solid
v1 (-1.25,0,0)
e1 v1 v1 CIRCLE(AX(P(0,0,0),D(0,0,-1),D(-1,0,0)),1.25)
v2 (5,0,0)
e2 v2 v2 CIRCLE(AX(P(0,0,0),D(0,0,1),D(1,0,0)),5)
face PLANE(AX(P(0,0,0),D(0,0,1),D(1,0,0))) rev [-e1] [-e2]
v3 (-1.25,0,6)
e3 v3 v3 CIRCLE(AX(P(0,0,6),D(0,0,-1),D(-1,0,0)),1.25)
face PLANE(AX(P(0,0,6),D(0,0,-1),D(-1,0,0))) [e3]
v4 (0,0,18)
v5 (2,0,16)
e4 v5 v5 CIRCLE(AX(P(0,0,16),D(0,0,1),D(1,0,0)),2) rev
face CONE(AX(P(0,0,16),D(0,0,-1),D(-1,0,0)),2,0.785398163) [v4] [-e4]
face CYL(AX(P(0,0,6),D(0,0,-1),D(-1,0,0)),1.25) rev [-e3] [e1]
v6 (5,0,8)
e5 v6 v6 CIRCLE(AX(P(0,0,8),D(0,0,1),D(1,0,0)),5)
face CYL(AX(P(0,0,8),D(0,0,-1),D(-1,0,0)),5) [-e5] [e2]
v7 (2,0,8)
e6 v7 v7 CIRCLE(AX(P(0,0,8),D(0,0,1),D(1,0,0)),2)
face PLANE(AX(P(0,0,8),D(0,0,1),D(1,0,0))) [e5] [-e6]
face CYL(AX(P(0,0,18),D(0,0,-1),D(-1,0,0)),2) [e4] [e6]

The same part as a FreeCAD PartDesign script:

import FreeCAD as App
import Part
import Sketcher

V = App.Vector
Q = App.Units.Quantity


def edges_at(feature, points):
    """Names of the edges that pass closest to the given points."""
    edges = feature.Shape.Edges
    near = lambda p: min(range(len(edges)), key=lambda i: edges[i].distToShape(Part.Vertex(*p))[0])
    return sorted({f"Edge{near(p) + 1}" for p in points})

doc = App.newDocument("Part")
body = doc.addObject("PartDesign::Body", "Body")

# Sketch on XY plane
sketch1 = doc.addObject("Sketcher::SketchObject", "Sketch")
body.addObject(sketch1)
sketch1.AttachmentSupport = (doc.XY_Plane, [""])
sketch1.MapMode = "FlatFace"
sketch1.addGeometry(Part.Circle(V(0, 0, 0), V(0, 0, 1), 5), False)
sketch1.addConstraint([
    Sketcher.Constraint("Coincident", 0, 3, -1, 1),
    Sketcher.Constraint("Diameter", 0, Q("10 mm")),
])
pad1 = doc.addObject("PartDesign::Pad", "Pad")
body.addObject(pad1)
pad1.Profile = sketch1
pad1.Length = 8

# Sketch on XY plane
sketch2 = doc.addObject("Sketcher::SketchObject", "Sketch001")
body.addObject(sketch2)
sketch2.AttachmentSupport = (doc.XY_Plane, [""])
sketch2.MapMode = "FlatFace"
sketch2.addGeometry(Part.Circle(V(0, 0, 0), V(0, 0, 1), 1.2), False)
sketch2.addConstraint([
    Sketcher.Constraint("Coincident", 0, 3, -1, 1),
    Sketcher.Constraint("Diameter", 0, Q("2.5 mm")),
])
pocket1 = doc.addObject("PartDesign::Pocket", "Pocket")
body.addObject(pocket1)
pocket1.Profile = sketch2
pocket1.Length = 6
pocket1.Reversed = True

# Sketch on XY plane
sketch3 = doc.addObject("Sketcher::SketchObject", "Sketch002")
body.addObject(sketch3)
sketch3.AttachmentSupport = (doc.XY_Plane, [""])
sketch3.MapMode = "FlatFace"
sketch3.AttachmentOffset = App.Placement(V(0, 0, 8), App.Rotation())
sketch3.addGeometry(Part.Circle(V(0, 0, 0), V(0, 0, 1), 2), False)
sketch3.addConstraint([
    Sketcher.Constraint("Coincident", 0, 3, -1, 1),
    Sketcher.Constraint("Diameter", 0, Q("4 mm")),
])
pad2 = doc.addObject("PartDesign::Pad", "Pad001")
body.addObject(pad2)
pad2.Profile = sketch3
pad2.Length = 10
doc.recompute()

chamfer = doc.addObject("PartDesign::Chamfer", "Chamfer")
body.addObject(chamfer)
chamfer.Base = (pad2, edges_at(pad2, [(-2, 0, 18)]))
chamfer.Size = 2

doc.recompute()
